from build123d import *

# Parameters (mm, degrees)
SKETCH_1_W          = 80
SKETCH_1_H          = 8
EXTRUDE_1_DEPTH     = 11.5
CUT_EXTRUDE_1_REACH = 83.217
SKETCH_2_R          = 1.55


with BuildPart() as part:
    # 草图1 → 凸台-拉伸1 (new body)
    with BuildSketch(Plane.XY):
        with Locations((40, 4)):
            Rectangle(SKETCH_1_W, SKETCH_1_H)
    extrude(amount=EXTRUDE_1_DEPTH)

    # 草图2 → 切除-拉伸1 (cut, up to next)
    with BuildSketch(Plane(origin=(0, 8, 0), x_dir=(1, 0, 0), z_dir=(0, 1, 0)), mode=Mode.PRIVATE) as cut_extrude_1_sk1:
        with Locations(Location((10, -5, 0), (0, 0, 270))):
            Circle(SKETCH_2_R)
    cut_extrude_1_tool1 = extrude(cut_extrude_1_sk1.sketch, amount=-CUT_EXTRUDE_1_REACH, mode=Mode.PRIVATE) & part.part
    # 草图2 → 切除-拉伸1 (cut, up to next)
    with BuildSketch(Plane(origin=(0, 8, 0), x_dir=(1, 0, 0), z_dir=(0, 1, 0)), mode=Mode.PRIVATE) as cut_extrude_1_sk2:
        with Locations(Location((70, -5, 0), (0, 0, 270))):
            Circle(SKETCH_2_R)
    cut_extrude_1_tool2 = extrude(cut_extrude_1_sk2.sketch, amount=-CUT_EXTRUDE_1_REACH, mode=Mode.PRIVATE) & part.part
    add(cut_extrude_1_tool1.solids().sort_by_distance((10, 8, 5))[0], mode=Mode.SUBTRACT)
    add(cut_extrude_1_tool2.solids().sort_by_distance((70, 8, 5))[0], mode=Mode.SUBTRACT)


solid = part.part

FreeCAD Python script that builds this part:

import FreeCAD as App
import Part
import Sketcher
from FreeCAD import Vector


def add_polygon(sketch, points):
    """Adds a closed chain of lines whose ends are joined by coincident constraints."""
    first, n = sketch.GeometryCount, len(points)
    for a, b in zip(points, points[1:] + points[:1]):
        sketch.addGeometry(Part.LineSegment(App.Vector(*a, 0), App.Vector(*b, 0)), False)
    for i in range(n):
        sketch.addConstraint(Sketcher.Constraint("Coincident", first + i, 2, first + (i + 1) % n, 1))

doc = App.newDocument("Part")
body = doc.addObject("PartDesign::Body", "Body")

sketch1 = doc.addObject("Sketcher::SketchObject", "Sketch")
body.addObject(sketch1)
sketch1.AttachmentSupport = (doc.XY_Plane, [""])
sketch1.MapMode = "FlatFace"
add_polygon(sketch1, [(0, 8), (0, 0), (80, 0), (80, 8)])
sketch1.addConstraint([
    Sketcher.Constraint("Vertical", 0),
    Sketcher.Constraint("Horizontal", 1),
    Sketcher.Constraint("Vertical", 2),
    Sketcher.Constraint("Horizontal", 3),
    Sketcher.Constraint("Coincident", 0, 2, -1, 1),
    Sketcher.Constraint("DistanceX", 1, 1, 1, 2, 80.0),
    Sketcher.Constraint("DistanceY", 0, 2, 0, 1, 8.0),
])
pad1 = doc.addObject("PartDesign::Pad", "Pad")
body.addObject(pad1)
pad1.Profile = sketch1
pad1.Length = 11.5

sketch2 = doc.addObject("Sketcher::SketchObject", "Sketch001")
body.addObject(sketch2)
sketch2.AttachmentSupport = (doc.XZ_Plane, [""])
sketch2.MapMode = "FlatFace"
sketch2.AttachmentOffset = App.Placement(Vector(0, 0, -8), App.Rotation())
sketch2.addGeometry(Part.Circle(Vector(10, 5, 0), Vector(0, 0, 1), 1.6), False)
sketch2.addConstraint([
    Sketcher.Constraint("Diameter", 0, 3.1),
    Sketcher.Constraint("DistanceX", -1, 1, 0, 3, 10.0),
    Sketcher.Constraint("DistanceY", -1, 1, 0, 3, 5.0),
])
pocket1 = doc.addObject("PartDesign::Pocket", "Pocket")
body.addObject(pocket1)
pocket1.Profile = sketch2
pocket1.Type = "UpToFirst"
pocket1.Reversed = True

sketch3 = doc.addObject("Sketcher::SketchObject", "Sketch002")
body.addObject(sketch3)
sketch3.AttachmentSupport = (doc.XZ_Plane, [""])
sketch3.MapMode = "FlatFace"
sketch3.AttachmentOffset = App.Placement(Vector(0, 0, -8), App.Rotation())
sketch3.addGeometry(Part.Circle(Vector(70, 5, 0), Vector(0, 0, 1), 1.6), False)
sketch3.addConstraint([
    Sketcher.Constraint("Diameter", 0, 3.1),
    Sketcher.Constraint("DistanceX", -1, 1, 0, 3, 70.0),
    Sketcher.Constraint("DistanceY", -1, 1, 0, 3, 5.0),
])
pocket2 = doc.addObject("PartDesign::Pocket", "Pocket001")
body.addObject(pocket2)
pocket2.Profile = sketch3
pocket2.Type = "UpToFirst"
pocket2.Reversed = True

doc.recompute()
